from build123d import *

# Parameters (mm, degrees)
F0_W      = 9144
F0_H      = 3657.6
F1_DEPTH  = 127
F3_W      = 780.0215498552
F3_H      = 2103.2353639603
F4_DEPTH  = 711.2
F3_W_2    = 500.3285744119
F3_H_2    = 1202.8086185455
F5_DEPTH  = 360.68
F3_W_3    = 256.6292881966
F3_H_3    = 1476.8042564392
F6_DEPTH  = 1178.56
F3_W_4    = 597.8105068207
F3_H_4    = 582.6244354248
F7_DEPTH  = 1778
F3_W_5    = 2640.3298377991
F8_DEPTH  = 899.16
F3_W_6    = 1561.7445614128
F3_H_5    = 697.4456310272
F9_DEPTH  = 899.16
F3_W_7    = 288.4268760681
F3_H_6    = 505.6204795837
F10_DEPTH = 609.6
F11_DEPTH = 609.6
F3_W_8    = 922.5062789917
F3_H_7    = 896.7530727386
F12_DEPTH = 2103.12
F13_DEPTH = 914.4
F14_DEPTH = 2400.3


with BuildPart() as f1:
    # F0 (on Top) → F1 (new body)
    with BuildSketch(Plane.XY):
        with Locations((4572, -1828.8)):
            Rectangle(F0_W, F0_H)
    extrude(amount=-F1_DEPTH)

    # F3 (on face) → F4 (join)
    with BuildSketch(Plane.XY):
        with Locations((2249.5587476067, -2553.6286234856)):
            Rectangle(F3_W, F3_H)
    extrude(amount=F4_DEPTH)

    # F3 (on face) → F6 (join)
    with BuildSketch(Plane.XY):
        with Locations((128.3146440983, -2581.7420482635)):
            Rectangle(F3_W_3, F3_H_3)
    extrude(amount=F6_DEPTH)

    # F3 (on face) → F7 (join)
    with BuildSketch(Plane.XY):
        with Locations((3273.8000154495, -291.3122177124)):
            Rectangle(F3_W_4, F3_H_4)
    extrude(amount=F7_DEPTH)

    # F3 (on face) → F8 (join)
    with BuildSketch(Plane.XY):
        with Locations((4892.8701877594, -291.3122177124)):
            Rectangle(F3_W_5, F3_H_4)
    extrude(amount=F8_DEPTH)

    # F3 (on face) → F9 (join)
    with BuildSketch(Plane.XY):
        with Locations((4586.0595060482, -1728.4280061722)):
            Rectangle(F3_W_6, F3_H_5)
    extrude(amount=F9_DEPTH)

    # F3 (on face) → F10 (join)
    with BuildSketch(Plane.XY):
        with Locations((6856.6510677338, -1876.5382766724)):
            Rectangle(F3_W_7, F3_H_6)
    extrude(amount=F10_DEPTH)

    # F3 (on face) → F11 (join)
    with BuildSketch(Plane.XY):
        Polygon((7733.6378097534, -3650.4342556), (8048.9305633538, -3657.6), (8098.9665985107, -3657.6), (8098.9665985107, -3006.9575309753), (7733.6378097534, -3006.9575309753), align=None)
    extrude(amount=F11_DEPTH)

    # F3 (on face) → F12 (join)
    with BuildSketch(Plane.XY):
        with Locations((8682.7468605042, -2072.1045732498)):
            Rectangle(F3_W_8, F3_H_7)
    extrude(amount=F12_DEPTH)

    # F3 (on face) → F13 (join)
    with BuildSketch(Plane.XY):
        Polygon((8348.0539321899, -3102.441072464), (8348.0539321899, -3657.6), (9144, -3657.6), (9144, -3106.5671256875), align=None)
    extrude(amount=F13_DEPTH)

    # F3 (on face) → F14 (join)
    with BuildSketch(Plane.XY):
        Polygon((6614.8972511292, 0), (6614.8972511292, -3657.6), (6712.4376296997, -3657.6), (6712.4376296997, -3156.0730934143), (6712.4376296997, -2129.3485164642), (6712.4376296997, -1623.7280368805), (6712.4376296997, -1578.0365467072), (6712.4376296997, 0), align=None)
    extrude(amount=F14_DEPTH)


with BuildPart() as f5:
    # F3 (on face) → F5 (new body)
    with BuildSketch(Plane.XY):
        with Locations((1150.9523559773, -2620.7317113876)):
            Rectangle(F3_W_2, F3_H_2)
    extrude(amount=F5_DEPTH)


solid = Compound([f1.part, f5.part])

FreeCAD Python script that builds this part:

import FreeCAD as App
import Part
import Sketcher
Q = App.Units.Quantity


def add_polygon(sketch, points):
    """Adds a closed chain of lines whose ends are joined by coincident constraints."""
    first, n = sketch.GeometryCount, len(points)
    for a, b in zip(points, points[1:] + points[:1]):
        sketch.addGeometry(Part.LineSegment(App.Vector(*a, 0), App.Vector(*b, 0)), False)
    for i in range(n):
        sketch.addConstraint(Sketcher.Constraint("Coincident", first + i, 2, first + (i + 1) % n, 1))

doc = App.newDocument("Part")
body = doc.addObject("PartDesign::Body", "Body")

sketch1 = body.newObject("Sketcher::SketchObject", "Sketch")
sketch1.AttachmentSupport = (doc.getObject("XY_Plane"), [""])
sketch1.MapMode = "FlatFace"
add_polygon(sketch1, [(0, 0), (0, -3657.6), (9144, -3657.6), (9144, 0)])
sketch1.addConstraint(Sketcher.Constraint("Vertical", 0))
sketch1.addConstraint(Sketcher.Constraint("Horizontal", 1))
sketch1.addConstraint(Sketcher.Constraint("Vertical", 2))
sketch1.addConstraint(Sketcher.Constraint("Horizontal", 3))
sketch1.addConstraint(Sketcher.Constraint("Coincident", 3, 2, -1, 1))
sketch1.addConstraint(Sketcher.Constraint("DistanceX", 1, 1, 1, 2, Q("360 in")))
sketch1.addConstraint(Sketcher.Constraint("DistanceY", 0, 2, 0, 1, Q("144 in")))
pad1 = body.newObject("PartDesign::Pad", "Pad")
pad1.Profile = sketch1
pad1.Length = Q("5 in")
pad1.Reversed = True

sketch2 = body.newObject("Sketcher::SketchObject", "Sketch001")
sketch2.AttachmentSupport = (doc.getObject("XY_Plane"), [""])
sketch2.MapMode = "FlatFace"
add_polygon(sketch2, [(1859.547973, -1502.010942), (1859.547973, -3605.246305), (2639.569523, -3605.246305), (2639.569523, -1502.010942)])
sketch2.addConstraint(Sketcher.Constraint("Vertical", 0))
sketch2.addConstraint(Sketcher.Constraint("Horizontal", 1))
sketch2.addConstraint(Sketcher.Constraint("Vertical", 2))
sketch2.addConstraint(Sketcher.Constraint("Horizontal", 3))
sketch2.addConstraint(Sketcher.Constraint("DistanceX", 1, 1, 1, 2, 780.02155))
sketch2.addConstraint(Sketcher.Constraint("DistanceY", 0, 2, 0, 1, 2103.235364))
sketch2.addConstraint(Sketcher.Constraint("DistanceY", 2, 2, -1, 1, 1502.010942))
sketch2.addConstraint(Sketcher.Constraint("DistanceX", -1, 1, 0, 2, 1859.547973))
pad2 = body.newObject("PartDesign::Pad", "Pad001")
pad2.Profile = sketch2
pad2.Length = Q("28 in")

sketch3 = body.newObject("Sketcher::SketchObject", "Sketch002")
sketch3.AttachmentSupport = (doc.getObject("XY_Plane"), [""])
sketch3.MapMode = "FlatFace"
add_polygon(sketch3, [(0, -1843.33992), (0, -3320.144176), (256.629288, -3320.144176), (256.629288, -1843.33992)])
sketch3.addConstraint(Sketcher.Constraint("Vertical", 0))
sketch3.addConstraint(Sketcher.Constraint("Horizontal", 1))
sketch3.addConstraint(Sketcher.Constraint("Vertical", 2))
sketch3.addConstraint(Sketcher.Constraint("Horizontal", 3))
sketch3.addConstraint(Sketcher.Constraint("PointOnObject", 0, 2, -2))
sketch3.addConstraint(Sketcher.Constraint("DistanceY", 0, 2, 0, 1, Q("58.1418999 in")))
sketch3.addConstraint(Sketcher.Constraint("DistanceX", 1, 1, 1, 2, 256.629288))
sketch3.addConstraint(Sketcher.Constraint("DistanceY", 2, 2, -1, 1, 1843.33992))
pad3 = body.newObject("PartDesign::Pad", "Pad002")
pad3.Profile = sketch3
pad3.Length = Q("46.4 in")

sketch4 = body.newObject("Sketcher::SketchObject", "Sketch003")
sketch4.AttachmentSupport = (doc.getObject("XY_Plane"), [""])
sketch4.MapMode = "FlatFace"
add_polygon(sketch4, [(2974.894762, 0), (2974.894762, -582.624435), (3572.705269, -582.624435), (3572.705269, 0)])
sketch4.addConstraint(Sketcher.Constraint("Vertical", 0))
sketch4.addConstraint(Sketcher.Constraint("Horizontal", 1))
sketch4.addConstraint(Sketcher.Constraint("Vertical", 2))
sketch4.addConstraint(Sketcher.Constraint("Horizontal", 3))
sketch4.addConstraint(Sketcher.Constraint("PointOnObject", 2, 2, -1))
sketch4.addConstraint(Sketcher.Constraint("DistanceX", 1, 1, 1, 2, 597.810507))
sketch4.addConstraint(Sketcher.Constraint("DistanceY", 0, 2, 0, 1, 582.624435))
sketch4.addConstraint(Sketcher.Constraint("DistanceX", -1, 1, 1, 2, 3572.705269))
pad4 = body.newObject("PartDesign::Pad", "Pad003")
pad4.Profile = sketch4
pad4.Length = Q("70 in")

sketch5 = body.newObject("Sketcher::SketchObject", "Sketch004")
sketch5.AttachmentSupport = (doc.getObject("XY_Plane"), [""])
sketch5.MapMode = "FlatFace"
add_polygon(sketch5, [(3572.705269, 0), (3572.705269, -582.624435), (6213.035107, -582.624435), (6213.035107, 0)])
sketch5.addConstraint(Sketcher.Constraint("Vertical", 0))
sketch5.addConstraint(Sketcher.Constraint("Horizontal", 1))
sketch5.addConstraint(Sketcher.Constraint("Vertical", 2))
sketch5.addConstraint(Sketcher.Constraint("Horizontal", 3))
sketch5.addConstraint(Sketcher.Constraint("PointOnObject", 2, 2, -1))
sketch5.addConstraint(Sketcher.Constraint("DistanceX", 1, 1, 1, 2, 2640.329838))
sketch5.addConstraint(Sketcher.Constraint("DistanceY", 0, 2, 0, 1, 582.624435))
sketch5.addConstraint(Sketcher.Constraint("DistanceX", -1, 1, 0, 2, 3572.705269))
pad5 = body.newObject("PartDesign::Pad", "Pad004")
pad5.Profile = sketch5
pad5.Length = Q("35.4 in")

sketch6 = body.newObject("Sketcher::SketchObject", "Sketch005")
sketch6.AttachmentSupport = (doc.getObject("XY_Plane"), [""])
sketch6.MapMode = "FlatFace"
add_polygon(sketch6, [(3805.187225, -1379.705191), (3805.187225, -2077.150822), (5366.931787, -2077.150822), (5366.931787, -1379.705191)])
sketch6.addConstraint(Sketcher.Constraint("Vertical", 0))
sketch6.addConstraint(Sketcher.Constraint("Horizontal", 1))
sketch6.addConstraint(Sketcher.Constraint("Vertical", 2))
sketch6.addConstraint(Sketcher.Constraint("Horizontal", 3))
sketch6.addConstraint(Sketcher.Constraint("DistanceX", 1, 1, 1, 2, 1561.744561))
sketch6.addConstraint(Sketcher.Constraint("DistanceY", 0, 2, 0, 1, 697.445631))
sketch6.addConstraint(Sketcher.Constraint("DistanceY", 0, 2, -1, 1, 2077.150822))
sketch6.addConstraint(Sketcher.Constraint("DistanceX", -1, 1, 0, 2, 3805.187225))
pad6 = body.newObject("PartDesign::Pad", "Pad005")
pad6.Profile = sketch6
pad6.Length = Q("35.4 in")

sketch7 = body.newObject("Sketcher::SketchObject", "Sketch006")
sketch7.AttachmentSupport = (doc.getObject("XY_Plane"), [""])
sketch7.MapMode = "FlatFace"
add_polygon(sketch7, [(6712.43763, -1623.728037), (6712.43763, -2129.348516), (7000.864506, -2129.348516), (7000.864506, -1623.728037)])
sketch7.addConstraint(Sketcher.Constraint("Vertical", 0))
sketch7.addConstraint(Sketcher.Constraint("Horizontal", 1))
sketch7.addConstraint(Sketcher.Constraint("Vertical", 2))
sketch7.addConstraint(Sketcher.Constraint("Horizontal", 3))
sketch7.addConstraint(Sketcher.Constraint("DistanceY", 0, 2, 0, 1, 505.62048))
sketch7.addConstraint(Sketcher.Constraint("DistanceX", 1, 1, 1, 2, 288.426876))
sketch7.addConstraint(Sketcher.Constraint("DistanceX", -1, 1, 0, 2, 6712.43763))
sketch7.addConstraint(Sketcher.Constraint("DistanceY", 0, 2, -1, 1, 2129.348516))
pad7 = body.newObject("PartDesign::Pad", "Pad006")
pad7.Profile = sketch7
pad7.Length = Q("24 in")

sketch8 = body.newObject("Sketcher::SketchObject", "Sketch007")
sketch8.AttachmentSupport = (doc.getObject("XY_Plane"), [""])
sketch8.MapMode = "FlatFace"
add_polygon(sketch8, [(7733.63781, -3650.434256), (8048.930563, -3657.6), (8098.966599, -3657.6), (8098.966599, -3006.957531), (7733.63781, -3006.957531)])
sketch8.addConstraint(Sketcher.Constraint("Horizontal", 1))
sketch8.addConstraint(Sketcher.Constraint("Vertical", 2))
sketch8.addConstraint(Sketcher.Constraint("Horizontal", 3))
sketch8.addConstraint(Sketcher.Constraint("Vertical", 4))
sketch8.addConstraint(Sketcher.Constraint("DistanceY", 0, 2, -1, 1, Q("144 in")))
sketch8.addConstraint(Sketcher.Constraint("DistanceX", 3, 2, 3, 1, 365.328789))
sketch8.addConstraint(Sketcher.Constraint("DistanceY", 2, 1, 2, 2, 650.642469))
sketch8.addConstraint(Sketcher.Constraint("DistanceX", -1, 1, 1, 2, 8098.966599))
sketch8.addConstraint(Sketcher.Constraint("DistanceX", 1, 1, 1, 2, 50.036035))
sketch8.addConstraint(Sketcher.Constraint("DistanceY", 4, 2, 4, 1, 643.476725))
pad8 = body.newObject("PartDesign::Pad", "Pad007")
pad8.Profile = sketch8
pad8.Length = Q("24 in")

sketch9 = body.newObject("Sketcher::SketchObject", "Sketch008")
sketch9.AttachmentSupport = (doc.getObject("XY_Plane"), [""])
sketch9.MapMode = "FlatFace"
add_polygon(sketch9, [(8221.493721, -1623.728037), (8221.493721, -2520.48111), (9144, -2520.48111), (9144, -1623.728037)])
sketch9.addConstraint(Sketcher.Constraint("Vertical", 0))
sketch9.addConstraint(Sketcher.Constraint("Horizontal", 1))
sketch9.addConstraint(Sketcher.Constraint("Vertical", 2))
sketch9.addConstraint(Sketcher.Constraint("Horizontal", 3))
sketch9.addConstraint(Sketcher.Constraint("DistanceX", -1, 1, 1, 2, Q("360 in")))
sketch9.addConstraint(Sketcher.Constraint("DistanceX", 1, 1, 1, 2, 922.506279))
sketch9.addConstraint(Sketcher.Constraint("DistanceY", 0, 2, 0, 1, 896.753073))
sketch9.addConstraint(Sketcher.Constraint("DistanceY", 0, 2, -1, 1, 2520.48111))
pad9 = body.newObject("PartDesign::Pad", "Pad008")
pad9.Profile = sketch9
pad9.Length = Q("82.8 in")

sketch10 = body.newObject("Sketcher::SketchObject", "Sketch009")
sketch10.AttachmentSupport = (doc.getObject("XY_Plane"), [""])
sketch10.MapMode = "FlatFace"
add_polygon(sketch10, [(8348.053932, -3102.441072), (8348.053932, -3657.6), (9144, -3657.6), (9144, -3106.567126)])
sketch10.addConstraint(Sketcher.Constraint("Vertical", 0))
sketch10.addConstraint(Sketcher.Constraint("Horizontal", 1))
sketch10.addConstraint(Sketcher.Constraint("Vertical", 2))
sketch10.addConstraint(Sketcher.Constraint("DistanceY", 0, 2, -1, 1, Q("144 in")))
sketch10.addConstraint(Sketcher.Constraint("DistanceX", -1, 1, 1, 2, Q("360 in")))
sketch10.addConstraint(Sketcher.Constraint("DistanceX", 1, 1, 1, 2, 795.946068))
sketch10.addConstraint(Sketcher.Constraint("DistanceY", 0, 2, 0, 1, 555.158928))
sketch10.addConstraint(Sketcher.Constraint("DistanceY", 2, 1, 2, 2, 551.032874))
pad10 = body.newObject("PartDesign::Pad", "Pad009")
pad10.Profile = sketch10
pad10.Length = Q("36 in")

sketch11 = body.newObject("Sketcher::SketchObject", "Sketch010")
sketch11.AttachmentSupport = (doc.getObject("XY_Plane"), [""])
sketch11.MapMode = "FlatFace"
add_polygon(sketch11, [(6614.897251, 0), (6614.897251, -3657.6), (6712.43763, -3657.6), (6712.43763, 0)])
sketch11.addConstraint(Sketcher.Constraint("Vertical", 0))
sketch11.addConstraint(Sketcher.Constraint("Horizontal", 1))
sketch11.addConstraint(Sketcher.Constraint("Vertical", 2))
sketch11.addConstraint(Sketcher.Constraint("Horizontal", 3))
sketch11.addConstraint(Sketcher.Constraint("PointOnObject", 2, 2, -1))
sketch11.addConstraint(Sketcher.Constraint("DistanceY", 0, 2, 0, 1, Q("144 in")))
sketch11.addConstraint(Sketcher.Constraint("DistanceX", 1, 1, 1, 2, 97.540379))
sketch11.addConstraint(Sketcher.Constraint("DistanceX", -1, 1, 0, 2, 6614.897251))
pad11 = body.newObject("PartDesign::Pad", "Pad010")
pad11.Profile = sketch11
pad11.Length = Q("94.5 in")
body2 = doc.addObject("PartDesign::Body", "Body001")

sketch12 = body2.newObject("Sketcher::SketchObject", "Sketch011")
sketch12.AttachmentSupport = (doc.getObject("XY_Plane001"), [""])
sketch12.MapMode = "FlatFace"
add_polygon(sketch12, [(900.788069, -2019.327402), (900.788069, -3222.136021), (1401.116643, -3222.136021), (1401.116643, -2019.327402)])
sketch12.addConstraint(Sketcher.Constraint("Vertical", 0))
sketch12.addConstraint(Sketcher.Constraint("Horizontal", 1))
sketch12.addConstraint(Sketcher.Constraint("Vertical", 2))
sketch12.addConstraint(Sketcher.Constraint("Horizontal", 3))
sketch12.addConstraint(Sketcher.Constraint("DistanceY", 0, 2, 0, 1, 1202.808619))
sketch12.addConstraint(Sketcher.Constraint("DistanceX", 1, 1, 1, 2, 500.328574))
sketch12.addConstraint(Sketcher.Constraint("DistanceX", -1, 1, 0, 2, 900.788069))
sketch12.addConstraint(Sketcher.Constraint("DistanceY", 0, 2, -1, 1, 3222.136021))
pad12 = body2.newObject("PartDesign::Pad", "Pad011")
pad12.Profile = sketch12
pad12.Length = Q("14.2 in")

doc.recompute()
